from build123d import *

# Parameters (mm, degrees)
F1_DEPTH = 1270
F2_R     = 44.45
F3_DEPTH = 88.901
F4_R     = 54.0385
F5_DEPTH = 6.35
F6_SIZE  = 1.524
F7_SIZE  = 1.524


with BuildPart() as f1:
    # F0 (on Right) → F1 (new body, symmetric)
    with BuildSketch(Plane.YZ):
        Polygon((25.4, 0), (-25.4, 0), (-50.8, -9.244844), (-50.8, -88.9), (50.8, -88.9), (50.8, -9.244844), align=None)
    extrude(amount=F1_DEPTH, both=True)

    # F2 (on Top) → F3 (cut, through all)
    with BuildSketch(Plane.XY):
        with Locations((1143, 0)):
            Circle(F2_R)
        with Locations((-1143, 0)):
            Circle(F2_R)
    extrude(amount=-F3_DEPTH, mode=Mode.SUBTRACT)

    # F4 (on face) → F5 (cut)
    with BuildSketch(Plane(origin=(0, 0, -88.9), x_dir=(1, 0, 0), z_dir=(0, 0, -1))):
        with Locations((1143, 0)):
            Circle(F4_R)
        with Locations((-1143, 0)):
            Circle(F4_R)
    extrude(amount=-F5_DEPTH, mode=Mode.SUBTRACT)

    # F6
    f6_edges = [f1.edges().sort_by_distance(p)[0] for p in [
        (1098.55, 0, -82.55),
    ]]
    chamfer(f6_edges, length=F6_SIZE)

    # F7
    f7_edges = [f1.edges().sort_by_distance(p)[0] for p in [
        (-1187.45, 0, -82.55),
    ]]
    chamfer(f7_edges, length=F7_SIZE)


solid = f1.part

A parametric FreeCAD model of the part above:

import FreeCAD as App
import Part
import Sketcher

V = App.Vector
Q = App.Units.Quantity


def edges_at(feature, points):
    """Names of the edges that pass closest to the given points."""
    edges = feature.Shape.Edges
    near = lambda p: min(range(len(edges)), key=lambda i: edges[i].distToShape(Part.Vertex(*p))[0])
    return sorted({f"Edge{near(p) + 1}" for p in points})


def add_polygon(sketch, points):
    """Adds a closed chain of lines whose ends are joined by coincident constraints."""
    first, n = sketch.GeometryCount, len(points)
    for a, b in zip(points, points[1:] + points[:1]):
        sketch.addGeometry(Part.LineSegment(App.Vector(*a, 0), App.Vector(*b, 0)), False)
    for i in range(n):
        sketch.addConstraint(Sketcher.Constraint("Coincident", first + i, 2, first + (i + 1) % n, 1))

doc = App.newDocument("Part")
body = doc.addObject("PartDesign::Body", "Body")

# Sketch on YZ plane
sketch1 = body.newObject("Sketcher::SketchObject", "Sketch")
sketch1.AttachmentSupport = (doc.getObject("YZ_Plane"), [""])
sketch1.MapMode = "FlatFace"
add_polygon(sketch1, [(25, 0), (-25, 0), (-51, -9), (-51, -89), (51, -89), (51, -9)])  # lines 0-5
sketch1.addConstraint([
    Sketcher.Constraint("Horizontal", 0),
    Sketcher.Constraint("Vertical", 2),
    Sketcher.Constraint("Horizontal", 3),
    Sketcher.Constraint("Vertical", 4),
    Sketcher.Constraint("Symmetric", 0, 2, 5, 2, -1, 1),
    Sketcher.Constraint("Symmetric", 1, 2, 4, 2, -2),
    Sketcher.Constraint("DistanceX", 0, 2, 0, 1, Q("2 in")),
    Sketcher.Constraint("DistanceX", 3, 1, 3, 2, Q("4 in")),
    Sketcher.Constraint("Angle", 1, Q("-160 deg")),
    Sketcher.Constraint("DistanceY", 2, 2, -1, 1, Q("3.5 in")),
])
pad1 = body.newObject("PartDesign::Pad", "Pad")
pad1.Profile = sketch1
pad1.Length = Q("100 in")
pad1.Midplane = True

# Sketch on XY plane
sketch2 = body.newObject("Sketcher::SketchObject", "Sketch001")
sketch2.AttachmentSupport = (doc.getObject("XY_Plane"), [""])
sketch2.MapMode = "FlatFace"
sketch2.addGeometry([
    Part.Circle(V(1143, 0, 0), V(0, 0, 1), 44),
    Part.Circle(V(-1143, 0, 0), V(0, 0, 1), 44),
], False)
sketch2.addConstraint([
    Sketcher.Constraint("Equal", 0, 1),
    Sketcher.Constraint("Symmetric", 0, 3, 1, 3, -1, 1),
    Sketcher.Constraint("PointOnObject", 0, 3, -1),
    Sketcher.Constraint("Diameter", 0, Q("3.5 in")),
    Sketcher.Constraint("DistanceX", -1, 1, 0, 3, Q("45 in")),
])
pocket1 = body.newObject("PartDesign::Pocket", "Pocket")
pocket1.Profile = sketch2
pocket1.Type = "ThroughAll"

# Sketch on XY plane
sketch3 = body.newObject("Sketcher::SketchObject", "Sketch002")
sketch3.AttachmentSupport = (doc.getObject("XY_Plane"), [""])
sketch3.MapMode = "FlatFace"
sketch3.AttachmentOffset = App.Placement(V(0, 0, -3.5 * 25.4), App.Rotation())
sketch3.addGeometry([
    Part.Circle(V(1143, 0, 0), V(0, 0, 1), 54),
    Part.Circle(V(-1143, 0, 0), V(0, 0, 1), 54),
], False)
sketch3.addConstraint([
    Sketcher.Constraint("Equal", 0, 1),
    Sketcher.Constraint("Symmetric", 0, 3, 1, 3, -1, 1),
    Sketcher.Constraint("PointOnObject", 0, 3, -1),
    Sketcher.Constraint("Diameter", 0, Q("4.255 in")),
    Sketcher.Constraint("DistanceX", -1, 1, 0, 3, Q("45 in")),
])
pocket2 = body.newObject("PartDesign::Pocket", "Pocket001")
pocket2.Profile = sketch3
pocket2.Length = Q("0.25 in")
pocket2.Reversed = True
doc.recompute()

chamfer = body.newObject("PartDesign::Chamfer", "Chamfer")
chamfer.Base = (pocket2, edges_at(pocket2, [(1098.55, 0, -82.55)]))
chamfer.Size = Q("0.06 in")
doc.recompute()

chamfer2 = body.newObject("PartDesign::Chamfer", "Chamfer001")
chamfer2.Base = (chamfer, edges_at(chamfer, [(-1187.45, 0, -82.55)]))
chamfer2.Size = Q("0.06 in")

doc.recompute()
